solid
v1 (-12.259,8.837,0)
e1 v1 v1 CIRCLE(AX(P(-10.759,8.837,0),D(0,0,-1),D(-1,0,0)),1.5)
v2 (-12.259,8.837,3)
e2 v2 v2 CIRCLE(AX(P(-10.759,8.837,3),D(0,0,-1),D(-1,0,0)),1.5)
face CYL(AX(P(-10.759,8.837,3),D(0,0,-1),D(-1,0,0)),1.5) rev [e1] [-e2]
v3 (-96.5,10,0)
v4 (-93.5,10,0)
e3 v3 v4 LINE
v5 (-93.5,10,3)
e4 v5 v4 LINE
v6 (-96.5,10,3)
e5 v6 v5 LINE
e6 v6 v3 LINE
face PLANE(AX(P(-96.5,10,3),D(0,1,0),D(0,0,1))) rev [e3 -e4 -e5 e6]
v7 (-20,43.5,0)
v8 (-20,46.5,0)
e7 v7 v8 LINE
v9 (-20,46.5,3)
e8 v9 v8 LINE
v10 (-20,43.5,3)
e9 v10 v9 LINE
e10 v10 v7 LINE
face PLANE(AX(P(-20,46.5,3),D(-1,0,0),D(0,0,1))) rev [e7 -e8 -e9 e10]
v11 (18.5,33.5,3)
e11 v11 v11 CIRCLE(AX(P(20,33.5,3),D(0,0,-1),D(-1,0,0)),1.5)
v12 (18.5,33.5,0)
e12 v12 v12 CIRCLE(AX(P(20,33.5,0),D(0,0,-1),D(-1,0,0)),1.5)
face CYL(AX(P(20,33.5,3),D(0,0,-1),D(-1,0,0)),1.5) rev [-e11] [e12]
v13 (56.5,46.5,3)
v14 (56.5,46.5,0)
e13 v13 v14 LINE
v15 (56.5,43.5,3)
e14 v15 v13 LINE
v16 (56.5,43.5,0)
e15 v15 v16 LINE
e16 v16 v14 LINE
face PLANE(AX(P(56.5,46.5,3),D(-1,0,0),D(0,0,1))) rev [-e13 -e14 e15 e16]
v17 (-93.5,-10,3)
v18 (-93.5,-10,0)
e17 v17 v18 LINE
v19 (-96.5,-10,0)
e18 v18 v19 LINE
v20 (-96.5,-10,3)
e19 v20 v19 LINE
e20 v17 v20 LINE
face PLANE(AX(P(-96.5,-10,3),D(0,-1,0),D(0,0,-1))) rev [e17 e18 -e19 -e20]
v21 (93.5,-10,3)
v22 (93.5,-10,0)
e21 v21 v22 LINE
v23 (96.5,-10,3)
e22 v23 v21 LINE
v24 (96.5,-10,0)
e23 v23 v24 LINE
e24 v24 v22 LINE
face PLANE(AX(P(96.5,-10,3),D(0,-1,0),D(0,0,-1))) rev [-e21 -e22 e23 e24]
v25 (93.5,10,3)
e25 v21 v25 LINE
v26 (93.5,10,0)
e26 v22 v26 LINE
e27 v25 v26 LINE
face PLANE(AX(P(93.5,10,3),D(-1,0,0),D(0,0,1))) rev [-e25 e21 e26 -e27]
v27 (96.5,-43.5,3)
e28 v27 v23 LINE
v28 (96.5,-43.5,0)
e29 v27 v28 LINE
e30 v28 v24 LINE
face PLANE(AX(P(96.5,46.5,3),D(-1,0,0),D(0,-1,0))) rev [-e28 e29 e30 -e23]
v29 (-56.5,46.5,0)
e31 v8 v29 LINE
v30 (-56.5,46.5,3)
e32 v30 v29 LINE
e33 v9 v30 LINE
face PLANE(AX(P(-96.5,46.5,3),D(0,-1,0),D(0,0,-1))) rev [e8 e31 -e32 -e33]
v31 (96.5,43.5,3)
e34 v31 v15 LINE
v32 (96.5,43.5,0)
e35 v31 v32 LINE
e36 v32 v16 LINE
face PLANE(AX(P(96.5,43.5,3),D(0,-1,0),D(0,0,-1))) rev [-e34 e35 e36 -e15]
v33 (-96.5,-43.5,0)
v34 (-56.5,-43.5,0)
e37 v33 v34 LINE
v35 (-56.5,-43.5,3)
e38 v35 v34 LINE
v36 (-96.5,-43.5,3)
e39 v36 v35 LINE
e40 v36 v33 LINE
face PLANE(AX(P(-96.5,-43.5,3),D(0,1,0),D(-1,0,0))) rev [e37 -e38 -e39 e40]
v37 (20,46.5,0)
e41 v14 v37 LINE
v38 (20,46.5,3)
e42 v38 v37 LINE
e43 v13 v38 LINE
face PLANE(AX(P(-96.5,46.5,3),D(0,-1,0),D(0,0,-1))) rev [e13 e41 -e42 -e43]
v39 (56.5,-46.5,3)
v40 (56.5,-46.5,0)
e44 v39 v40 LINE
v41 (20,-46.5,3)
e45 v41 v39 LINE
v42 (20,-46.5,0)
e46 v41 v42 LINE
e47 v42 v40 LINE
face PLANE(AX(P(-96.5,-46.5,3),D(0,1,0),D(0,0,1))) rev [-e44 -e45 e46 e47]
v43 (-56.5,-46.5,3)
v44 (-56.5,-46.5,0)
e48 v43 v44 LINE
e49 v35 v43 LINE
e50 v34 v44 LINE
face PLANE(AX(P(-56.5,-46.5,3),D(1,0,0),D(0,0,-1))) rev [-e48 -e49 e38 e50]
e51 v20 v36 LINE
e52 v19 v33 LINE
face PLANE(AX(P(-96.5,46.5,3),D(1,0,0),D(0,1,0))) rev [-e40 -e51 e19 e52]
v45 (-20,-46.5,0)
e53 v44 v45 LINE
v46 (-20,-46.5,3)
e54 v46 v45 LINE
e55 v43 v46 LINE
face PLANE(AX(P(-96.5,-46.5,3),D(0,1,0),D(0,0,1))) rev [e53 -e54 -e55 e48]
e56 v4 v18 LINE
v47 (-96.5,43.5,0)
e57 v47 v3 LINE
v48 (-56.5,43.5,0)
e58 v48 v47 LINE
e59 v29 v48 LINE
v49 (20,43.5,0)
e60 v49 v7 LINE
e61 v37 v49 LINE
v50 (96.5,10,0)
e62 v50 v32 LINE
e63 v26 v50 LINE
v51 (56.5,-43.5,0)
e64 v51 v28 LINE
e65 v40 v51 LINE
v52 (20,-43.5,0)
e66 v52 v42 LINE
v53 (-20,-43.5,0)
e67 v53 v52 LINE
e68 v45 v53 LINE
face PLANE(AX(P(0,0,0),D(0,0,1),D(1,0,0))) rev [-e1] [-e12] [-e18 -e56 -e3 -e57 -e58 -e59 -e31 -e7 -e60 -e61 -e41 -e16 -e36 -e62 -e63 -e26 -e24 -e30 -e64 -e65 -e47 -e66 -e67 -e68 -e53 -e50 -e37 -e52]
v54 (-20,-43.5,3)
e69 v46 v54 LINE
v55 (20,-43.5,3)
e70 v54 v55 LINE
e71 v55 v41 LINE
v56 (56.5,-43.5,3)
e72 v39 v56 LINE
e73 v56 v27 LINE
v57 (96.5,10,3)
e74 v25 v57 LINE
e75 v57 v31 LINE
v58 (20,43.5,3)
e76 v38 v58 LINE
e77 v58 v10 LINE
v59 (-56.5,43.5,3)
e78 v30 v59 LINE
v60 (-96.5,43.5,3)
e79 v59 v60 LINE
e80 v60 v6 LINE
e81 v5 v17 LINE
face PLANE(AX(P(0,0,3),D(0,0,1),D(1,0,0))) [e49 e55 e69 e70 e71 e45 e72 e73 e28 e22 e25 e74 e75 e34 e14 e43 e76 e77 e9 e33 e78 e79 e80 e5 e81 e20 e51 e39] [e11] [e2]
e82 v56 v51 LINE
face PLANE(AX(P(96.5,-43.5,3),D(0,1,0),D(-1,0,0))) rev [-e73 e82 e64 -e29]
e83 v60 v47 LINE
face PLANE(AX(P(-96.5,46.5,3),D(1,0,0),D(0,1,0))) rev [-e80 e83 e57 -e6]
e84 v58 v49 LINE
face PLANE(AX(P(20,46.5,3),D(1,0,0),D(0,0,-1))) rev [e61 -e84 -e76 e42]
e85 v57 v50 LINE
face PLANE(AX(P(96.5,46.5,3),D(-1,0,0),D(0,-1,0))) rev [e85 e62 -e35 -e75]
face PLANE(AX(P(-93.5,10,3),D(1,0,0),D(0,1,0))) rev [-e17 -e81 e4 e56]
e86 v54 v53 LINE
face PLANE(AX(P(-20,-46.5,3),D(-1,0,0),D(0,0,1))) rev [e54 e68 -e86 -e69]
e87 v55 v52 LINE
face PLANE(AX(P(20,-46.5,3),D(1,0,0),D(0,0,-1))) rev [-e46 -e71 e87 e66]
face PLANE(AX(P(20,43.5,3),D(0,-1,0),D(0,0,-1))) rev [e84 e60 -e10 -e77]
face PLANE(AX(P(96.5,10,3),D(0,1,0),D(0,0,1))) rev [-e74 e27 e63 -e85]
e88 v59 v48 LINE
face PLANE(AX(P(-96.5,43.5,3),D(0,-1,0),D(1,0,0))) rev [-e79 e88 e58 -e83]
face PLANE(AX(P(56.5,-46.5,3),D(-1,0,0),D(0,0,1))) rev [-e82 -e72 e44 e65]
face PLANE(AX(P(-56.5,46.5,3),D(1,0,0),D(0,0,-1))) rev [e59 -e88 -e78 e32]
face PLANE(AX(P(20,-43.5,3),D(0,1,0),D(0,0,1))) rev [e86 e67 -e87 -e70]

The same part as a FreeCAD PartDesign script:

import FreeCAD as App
import Part
import Sketcher

V = App.Vector
Q = App.Units.Quantity


def add_polygon(sketch, points):
    """Adds a closed chain of lines whose ends are joined by coincident constraints."""
    first, n = sketch.GeometryCount, len(points)
    for a, b in zip(points, points[1:] + points[:1]):
        sketch.addGeometry(Part.LineSegment(App.Vector(*a, 0), App.Vector(*b, 0)), False)
    for i in range(n):
        sketch.addConstraint(Sketcher.Constraint("Coincident", first + i, 2, first + (i + 1) % n, 1))

doc = App.newDocument("Part")
body = doc.addObject("PartDesign::Body", "Body")

# Sketch on XY plane
sketch1 = doc.addObject("Sketcher::SketchObject", "Sketch")
body.addObject(sketch1)
sketch1.AttachmentSupport = (doc.XY_Plane, [""])
sketch1.MapMode = "FlatFace"
add_polygon(sketch1, [(-96, 46), (-96, -46), (96, -46), (96, 46)])  # lines 0-3
sketch1.addConstraint(Sketcher.Constraint("Vertical", 0))
sketch1.addConstraint(Sketcher.Constraint("Horizontal", 1))
sketch1.addConstraint(Sketcher.Constraint("Vertical", 2))
sketch1.addConstraint(Sketcher.Constraint("Horizontal", 3))
sketch1.addConstraint(Sketcher.Constraint("Symmetric", 0, 2, 2, 2, -1, 1))
sketch1.addConstraint(Sketcher.Constraint("DistanceX", 1, 1, 1, 2, Q("193 mm")))
sketch1.addConstraint(Sketcher.Constraint("DistanceY", 0, 2, 0, 1, Q("93 mm")))
pad1 = doc.addObject("PartDesign::Pad", "Pad")
body.addObject(pad1)
pad1.Profile = sketch1
pad1.Length = 3

# Sketch on XY plane
sketch2 = doc.addObject("Sketcher::SketchObject", "Sketch001")
body.addObject(sketch2)
sketch2.AttachmentSupport = (doc.XY_Plane, [""])
sketch2.MapMode = "FlatFace"
sketch2.addGeometry(Part.Circle(V(20, 33.5, 0), V(0, 0, 1), 1.5), False)  # 0
sketch2.addGeometry(Part.Circle(V(-10.8, 8.8, 0), V(0, 0, 1), 1.5), False)  # 1
add_polygon(sketch2, [(96.5, 46.5), (96.5, 43.5), (56.5, 43.5), (56.5, 46.5)])  # lines 2-5
add_polygon(sketch2, [(-56.5, -43.5), (-56.5, -46.5), (-96.5, -46.5), (-96.5, -43.5)])  # lines 6-9
add_polygon(sketch2, [(-56.5, 46.5), (-56.5, 43.5), (-96.5, 43.5), (-96.5, 46.5)])  # lines 10-13
add_polygon(sketch2, [(20, 46.5), (20, 43.5), (-20, 43.5), (-20, 46.5)])  # lines 14-17
add_polygon(sketch2, [(20, -43.5), (20, -46.5), (-20, -46.5), (-20, -43.5)])  # lines 18-21
add_polygon(sketch2, [(96.5, -43.5), (96.5, -46.5), (56.5, -46.5), (56.5, -43.5)])  # lines 22-25
add_polygon(sketch2, [(-93.5, 10), (-93.5, -10), (-96.5, -10), (-96.5, 10)])  # lines 26-29
add_polygon(sketch2, [(96.5, 10), (96.5, -10), (93.5, -10), (93.5, 10)])  # lines 30-33
sketch2.addConstraint(Sketcher.Constraint("Vertical", 2))
sketch2.addConstraint(Sketcher.Constraint("Horizontal", 3))
sketch2.addConstraint(Sketcher.Constraint("Vertical", 4))
sketch2.addConstraint(Sketcher.Constraint("Horizontal", 5))
sketch2.addConstraint(Sketcher.Constraint("Vertical", 6))
sketch2.addConstraint(Sketcher.Constraint("Horizontal", 7))
sketch2.addConstraint(Sketcher.Constraint("Vertical", 8))
sketch2.addConstraint(Sketcher.Constraint("Horizontal", 9))
sketch2.addConstraint(Sketcher.Constraint("Vertical", 10))
sketch2.addConstraint(Sketcher.Constraint("Horizontal", 11))
sketch2.addConstraint(Sketcher.Constraint("Vertical", 12))
sketch2.addConstraint(Sketcher.Constraint("Horizontal", 13))
sketch2.addConstraint(Sketcher.Constraint("Vertical", 14))
sketch2.addConstraint(Sketcher.Constraint("Horizontal", 15))
sketch2.addConstraint(Sketcher.Constraint("Vertical", 16))
sketch2.addConstraint(Sketcher.Constraint("Horizontal", 17))
sketch2.addConstraint(Sketcher.Constraint("Vertical", 18))
sketch2.addConstraint(Sketcher.Constraint("Horizontal", 19))
sketch2.addConstraint(Sketcher.Constraint("Vertical", 20))
sketch2.addConstraint(Sketcher.Constraint("Horizontal", 21))
sketch2.addConstraint(Sketcher.Constraint("Vertical", 22))
sketch2.addConstraint(Sketcher.Constraint("Horizontal", 23))
sketch2.addConstraint(Sketcher.Constraint("Vertical", 24))
sketch2.addConstraint(Sketcher.Constraint("Horizontal", 25))
sketch2.addConstraint(Sketcher.Constraint("Vertical", 26))
sketch2.addConstraint(Sketcher.Constraint("Horizontal", 27))
sketch2.addConstraint(Sketcher.Constraint("Vertical", 28))
sketch2.addConstraint(Sketcher.Constraint("Horizontal", 29))
sketch2.addConstraint(Sketcher.Constraint("Vertical", 30))
sketch2.addConstraint(Sketcher.Constraint("Horizontal", 31))
sketch2.addConstraint(Sketcher.Constraint("Vertical", 32))
sketch2.addConstraint(Sketcher.Constraint("Horizontal", 33))
sketch2.addConstraint(Sketcher.Constraint("Equal", 0, 1))
sketch2.addConstraint(Sketcher.Constraint("Symmetric", 4, 2, 6, 2, -1, 1))
sketch2.addConstraint(Sketcher.Constraint("Symmetric", 2, 2, 8, 2, -1, 1))
sketch2.addConstraint(Sketcher.Constraint("Symmetric", 16, 2, 18, 2, -1, 1))
sketch2.addConstraint(Sketcher.Constraint("Symmetric", 14, 2, 20, 2, -1, 1))
sketch2.addConstraint(Sketcher.Constraint("Symmetric", 12, 2, 22, 2, -1, 1))
sketch2.addConstraint(Sketcher.Constraint("Symmetric", 10, 2, 24, 2, -1, 1))
sketch2.addConstraint(Sketcher.Constraint("Symmetric", 28, 2, 30, 2, -1, 1))
sketch2.addConstraint(Sketcher.Constraint("Symmetric", 26, 2, 32, 2, -1, 1))
sketch2.addConstraint(Sketcher.Constraint("Symmetric", 3, 2, 10, 2, -2))
sketch2.addConstraint(Sketcher.Constraint("Symmetric", 5, 2, 12, 2, -2))
sketch2.addConstraint(Sketcher.Constraint("Horizontal", 11, 2, 14, 2))
sketch2.addConstraint(Sketcher.Constraint("Horizontal", 13, 2, 16, 2))
sketch2.addConstraint(Sketcher.Constraint("Horizontal", 27, 2, 30, 2))
sketch2.addConstraint(Sketcher.Constraint("Vertical", 0, 3, 14, 2))
sketch2.addConstraint(Sketcher.Constraint("Vertical", 17, 2, 18, 2))
sketch2.addConstraint(Sketcher.Constraint("Vertical", 12, 2, 27, 2))
sketch2.addConstraint(Sketcher.Constraint("Equal", 13, 15))
sketch2.addConstraint(Sketcher.Constraint("Equal", 33, 2))
sketch2.addConstraint(Sketcher.Constraint("Diameter", 0, Q("3 mm")))
sketch2.addConstraint(Sketcher.Constraint("DistanceX", 3, 2, 3, 1, Q("40 mm")))
sketch2.addConstraint(Sketcher.Constraint("DistanceX", 27, 2, 27, 1, Q("3 mm")))
sketch2.addConstraint(Sketcher.Constraint("DistanceY", 26, 2, 26, 1, Q("20 mm")))
sketch2.addConstraint(Sketcher.Constraint("DistanceY", 0, 3, 2, 2, Q("10 mm")))
sketch2.addConstraint(Sketcher.Constraint("DistanceY", 6, 2, 0, 3, Q("80 mm")))
sketch2.addConstraint(Sketcher.Constraint("DistanceX", 6, 2, 3, 2, Q("113 mm")))
sketch2.addConstraint(Sketcher.Constraint("DistanceX", 1, 3, -1, 1, Q("10.759 mm")))
sketch2.addConstraint(Sketcher.Constraint("DistanceY", -1, 1, 1, 3, Q("8.837 mm")))
pocket1 = doc.addObject("PartDesign::Pocket", "Pocket")
body.addObject(pocket1)
pocket1.Profile = sketch2
pocket1.Length = 3
pocket1.Reversed = True

doc.recompute()
